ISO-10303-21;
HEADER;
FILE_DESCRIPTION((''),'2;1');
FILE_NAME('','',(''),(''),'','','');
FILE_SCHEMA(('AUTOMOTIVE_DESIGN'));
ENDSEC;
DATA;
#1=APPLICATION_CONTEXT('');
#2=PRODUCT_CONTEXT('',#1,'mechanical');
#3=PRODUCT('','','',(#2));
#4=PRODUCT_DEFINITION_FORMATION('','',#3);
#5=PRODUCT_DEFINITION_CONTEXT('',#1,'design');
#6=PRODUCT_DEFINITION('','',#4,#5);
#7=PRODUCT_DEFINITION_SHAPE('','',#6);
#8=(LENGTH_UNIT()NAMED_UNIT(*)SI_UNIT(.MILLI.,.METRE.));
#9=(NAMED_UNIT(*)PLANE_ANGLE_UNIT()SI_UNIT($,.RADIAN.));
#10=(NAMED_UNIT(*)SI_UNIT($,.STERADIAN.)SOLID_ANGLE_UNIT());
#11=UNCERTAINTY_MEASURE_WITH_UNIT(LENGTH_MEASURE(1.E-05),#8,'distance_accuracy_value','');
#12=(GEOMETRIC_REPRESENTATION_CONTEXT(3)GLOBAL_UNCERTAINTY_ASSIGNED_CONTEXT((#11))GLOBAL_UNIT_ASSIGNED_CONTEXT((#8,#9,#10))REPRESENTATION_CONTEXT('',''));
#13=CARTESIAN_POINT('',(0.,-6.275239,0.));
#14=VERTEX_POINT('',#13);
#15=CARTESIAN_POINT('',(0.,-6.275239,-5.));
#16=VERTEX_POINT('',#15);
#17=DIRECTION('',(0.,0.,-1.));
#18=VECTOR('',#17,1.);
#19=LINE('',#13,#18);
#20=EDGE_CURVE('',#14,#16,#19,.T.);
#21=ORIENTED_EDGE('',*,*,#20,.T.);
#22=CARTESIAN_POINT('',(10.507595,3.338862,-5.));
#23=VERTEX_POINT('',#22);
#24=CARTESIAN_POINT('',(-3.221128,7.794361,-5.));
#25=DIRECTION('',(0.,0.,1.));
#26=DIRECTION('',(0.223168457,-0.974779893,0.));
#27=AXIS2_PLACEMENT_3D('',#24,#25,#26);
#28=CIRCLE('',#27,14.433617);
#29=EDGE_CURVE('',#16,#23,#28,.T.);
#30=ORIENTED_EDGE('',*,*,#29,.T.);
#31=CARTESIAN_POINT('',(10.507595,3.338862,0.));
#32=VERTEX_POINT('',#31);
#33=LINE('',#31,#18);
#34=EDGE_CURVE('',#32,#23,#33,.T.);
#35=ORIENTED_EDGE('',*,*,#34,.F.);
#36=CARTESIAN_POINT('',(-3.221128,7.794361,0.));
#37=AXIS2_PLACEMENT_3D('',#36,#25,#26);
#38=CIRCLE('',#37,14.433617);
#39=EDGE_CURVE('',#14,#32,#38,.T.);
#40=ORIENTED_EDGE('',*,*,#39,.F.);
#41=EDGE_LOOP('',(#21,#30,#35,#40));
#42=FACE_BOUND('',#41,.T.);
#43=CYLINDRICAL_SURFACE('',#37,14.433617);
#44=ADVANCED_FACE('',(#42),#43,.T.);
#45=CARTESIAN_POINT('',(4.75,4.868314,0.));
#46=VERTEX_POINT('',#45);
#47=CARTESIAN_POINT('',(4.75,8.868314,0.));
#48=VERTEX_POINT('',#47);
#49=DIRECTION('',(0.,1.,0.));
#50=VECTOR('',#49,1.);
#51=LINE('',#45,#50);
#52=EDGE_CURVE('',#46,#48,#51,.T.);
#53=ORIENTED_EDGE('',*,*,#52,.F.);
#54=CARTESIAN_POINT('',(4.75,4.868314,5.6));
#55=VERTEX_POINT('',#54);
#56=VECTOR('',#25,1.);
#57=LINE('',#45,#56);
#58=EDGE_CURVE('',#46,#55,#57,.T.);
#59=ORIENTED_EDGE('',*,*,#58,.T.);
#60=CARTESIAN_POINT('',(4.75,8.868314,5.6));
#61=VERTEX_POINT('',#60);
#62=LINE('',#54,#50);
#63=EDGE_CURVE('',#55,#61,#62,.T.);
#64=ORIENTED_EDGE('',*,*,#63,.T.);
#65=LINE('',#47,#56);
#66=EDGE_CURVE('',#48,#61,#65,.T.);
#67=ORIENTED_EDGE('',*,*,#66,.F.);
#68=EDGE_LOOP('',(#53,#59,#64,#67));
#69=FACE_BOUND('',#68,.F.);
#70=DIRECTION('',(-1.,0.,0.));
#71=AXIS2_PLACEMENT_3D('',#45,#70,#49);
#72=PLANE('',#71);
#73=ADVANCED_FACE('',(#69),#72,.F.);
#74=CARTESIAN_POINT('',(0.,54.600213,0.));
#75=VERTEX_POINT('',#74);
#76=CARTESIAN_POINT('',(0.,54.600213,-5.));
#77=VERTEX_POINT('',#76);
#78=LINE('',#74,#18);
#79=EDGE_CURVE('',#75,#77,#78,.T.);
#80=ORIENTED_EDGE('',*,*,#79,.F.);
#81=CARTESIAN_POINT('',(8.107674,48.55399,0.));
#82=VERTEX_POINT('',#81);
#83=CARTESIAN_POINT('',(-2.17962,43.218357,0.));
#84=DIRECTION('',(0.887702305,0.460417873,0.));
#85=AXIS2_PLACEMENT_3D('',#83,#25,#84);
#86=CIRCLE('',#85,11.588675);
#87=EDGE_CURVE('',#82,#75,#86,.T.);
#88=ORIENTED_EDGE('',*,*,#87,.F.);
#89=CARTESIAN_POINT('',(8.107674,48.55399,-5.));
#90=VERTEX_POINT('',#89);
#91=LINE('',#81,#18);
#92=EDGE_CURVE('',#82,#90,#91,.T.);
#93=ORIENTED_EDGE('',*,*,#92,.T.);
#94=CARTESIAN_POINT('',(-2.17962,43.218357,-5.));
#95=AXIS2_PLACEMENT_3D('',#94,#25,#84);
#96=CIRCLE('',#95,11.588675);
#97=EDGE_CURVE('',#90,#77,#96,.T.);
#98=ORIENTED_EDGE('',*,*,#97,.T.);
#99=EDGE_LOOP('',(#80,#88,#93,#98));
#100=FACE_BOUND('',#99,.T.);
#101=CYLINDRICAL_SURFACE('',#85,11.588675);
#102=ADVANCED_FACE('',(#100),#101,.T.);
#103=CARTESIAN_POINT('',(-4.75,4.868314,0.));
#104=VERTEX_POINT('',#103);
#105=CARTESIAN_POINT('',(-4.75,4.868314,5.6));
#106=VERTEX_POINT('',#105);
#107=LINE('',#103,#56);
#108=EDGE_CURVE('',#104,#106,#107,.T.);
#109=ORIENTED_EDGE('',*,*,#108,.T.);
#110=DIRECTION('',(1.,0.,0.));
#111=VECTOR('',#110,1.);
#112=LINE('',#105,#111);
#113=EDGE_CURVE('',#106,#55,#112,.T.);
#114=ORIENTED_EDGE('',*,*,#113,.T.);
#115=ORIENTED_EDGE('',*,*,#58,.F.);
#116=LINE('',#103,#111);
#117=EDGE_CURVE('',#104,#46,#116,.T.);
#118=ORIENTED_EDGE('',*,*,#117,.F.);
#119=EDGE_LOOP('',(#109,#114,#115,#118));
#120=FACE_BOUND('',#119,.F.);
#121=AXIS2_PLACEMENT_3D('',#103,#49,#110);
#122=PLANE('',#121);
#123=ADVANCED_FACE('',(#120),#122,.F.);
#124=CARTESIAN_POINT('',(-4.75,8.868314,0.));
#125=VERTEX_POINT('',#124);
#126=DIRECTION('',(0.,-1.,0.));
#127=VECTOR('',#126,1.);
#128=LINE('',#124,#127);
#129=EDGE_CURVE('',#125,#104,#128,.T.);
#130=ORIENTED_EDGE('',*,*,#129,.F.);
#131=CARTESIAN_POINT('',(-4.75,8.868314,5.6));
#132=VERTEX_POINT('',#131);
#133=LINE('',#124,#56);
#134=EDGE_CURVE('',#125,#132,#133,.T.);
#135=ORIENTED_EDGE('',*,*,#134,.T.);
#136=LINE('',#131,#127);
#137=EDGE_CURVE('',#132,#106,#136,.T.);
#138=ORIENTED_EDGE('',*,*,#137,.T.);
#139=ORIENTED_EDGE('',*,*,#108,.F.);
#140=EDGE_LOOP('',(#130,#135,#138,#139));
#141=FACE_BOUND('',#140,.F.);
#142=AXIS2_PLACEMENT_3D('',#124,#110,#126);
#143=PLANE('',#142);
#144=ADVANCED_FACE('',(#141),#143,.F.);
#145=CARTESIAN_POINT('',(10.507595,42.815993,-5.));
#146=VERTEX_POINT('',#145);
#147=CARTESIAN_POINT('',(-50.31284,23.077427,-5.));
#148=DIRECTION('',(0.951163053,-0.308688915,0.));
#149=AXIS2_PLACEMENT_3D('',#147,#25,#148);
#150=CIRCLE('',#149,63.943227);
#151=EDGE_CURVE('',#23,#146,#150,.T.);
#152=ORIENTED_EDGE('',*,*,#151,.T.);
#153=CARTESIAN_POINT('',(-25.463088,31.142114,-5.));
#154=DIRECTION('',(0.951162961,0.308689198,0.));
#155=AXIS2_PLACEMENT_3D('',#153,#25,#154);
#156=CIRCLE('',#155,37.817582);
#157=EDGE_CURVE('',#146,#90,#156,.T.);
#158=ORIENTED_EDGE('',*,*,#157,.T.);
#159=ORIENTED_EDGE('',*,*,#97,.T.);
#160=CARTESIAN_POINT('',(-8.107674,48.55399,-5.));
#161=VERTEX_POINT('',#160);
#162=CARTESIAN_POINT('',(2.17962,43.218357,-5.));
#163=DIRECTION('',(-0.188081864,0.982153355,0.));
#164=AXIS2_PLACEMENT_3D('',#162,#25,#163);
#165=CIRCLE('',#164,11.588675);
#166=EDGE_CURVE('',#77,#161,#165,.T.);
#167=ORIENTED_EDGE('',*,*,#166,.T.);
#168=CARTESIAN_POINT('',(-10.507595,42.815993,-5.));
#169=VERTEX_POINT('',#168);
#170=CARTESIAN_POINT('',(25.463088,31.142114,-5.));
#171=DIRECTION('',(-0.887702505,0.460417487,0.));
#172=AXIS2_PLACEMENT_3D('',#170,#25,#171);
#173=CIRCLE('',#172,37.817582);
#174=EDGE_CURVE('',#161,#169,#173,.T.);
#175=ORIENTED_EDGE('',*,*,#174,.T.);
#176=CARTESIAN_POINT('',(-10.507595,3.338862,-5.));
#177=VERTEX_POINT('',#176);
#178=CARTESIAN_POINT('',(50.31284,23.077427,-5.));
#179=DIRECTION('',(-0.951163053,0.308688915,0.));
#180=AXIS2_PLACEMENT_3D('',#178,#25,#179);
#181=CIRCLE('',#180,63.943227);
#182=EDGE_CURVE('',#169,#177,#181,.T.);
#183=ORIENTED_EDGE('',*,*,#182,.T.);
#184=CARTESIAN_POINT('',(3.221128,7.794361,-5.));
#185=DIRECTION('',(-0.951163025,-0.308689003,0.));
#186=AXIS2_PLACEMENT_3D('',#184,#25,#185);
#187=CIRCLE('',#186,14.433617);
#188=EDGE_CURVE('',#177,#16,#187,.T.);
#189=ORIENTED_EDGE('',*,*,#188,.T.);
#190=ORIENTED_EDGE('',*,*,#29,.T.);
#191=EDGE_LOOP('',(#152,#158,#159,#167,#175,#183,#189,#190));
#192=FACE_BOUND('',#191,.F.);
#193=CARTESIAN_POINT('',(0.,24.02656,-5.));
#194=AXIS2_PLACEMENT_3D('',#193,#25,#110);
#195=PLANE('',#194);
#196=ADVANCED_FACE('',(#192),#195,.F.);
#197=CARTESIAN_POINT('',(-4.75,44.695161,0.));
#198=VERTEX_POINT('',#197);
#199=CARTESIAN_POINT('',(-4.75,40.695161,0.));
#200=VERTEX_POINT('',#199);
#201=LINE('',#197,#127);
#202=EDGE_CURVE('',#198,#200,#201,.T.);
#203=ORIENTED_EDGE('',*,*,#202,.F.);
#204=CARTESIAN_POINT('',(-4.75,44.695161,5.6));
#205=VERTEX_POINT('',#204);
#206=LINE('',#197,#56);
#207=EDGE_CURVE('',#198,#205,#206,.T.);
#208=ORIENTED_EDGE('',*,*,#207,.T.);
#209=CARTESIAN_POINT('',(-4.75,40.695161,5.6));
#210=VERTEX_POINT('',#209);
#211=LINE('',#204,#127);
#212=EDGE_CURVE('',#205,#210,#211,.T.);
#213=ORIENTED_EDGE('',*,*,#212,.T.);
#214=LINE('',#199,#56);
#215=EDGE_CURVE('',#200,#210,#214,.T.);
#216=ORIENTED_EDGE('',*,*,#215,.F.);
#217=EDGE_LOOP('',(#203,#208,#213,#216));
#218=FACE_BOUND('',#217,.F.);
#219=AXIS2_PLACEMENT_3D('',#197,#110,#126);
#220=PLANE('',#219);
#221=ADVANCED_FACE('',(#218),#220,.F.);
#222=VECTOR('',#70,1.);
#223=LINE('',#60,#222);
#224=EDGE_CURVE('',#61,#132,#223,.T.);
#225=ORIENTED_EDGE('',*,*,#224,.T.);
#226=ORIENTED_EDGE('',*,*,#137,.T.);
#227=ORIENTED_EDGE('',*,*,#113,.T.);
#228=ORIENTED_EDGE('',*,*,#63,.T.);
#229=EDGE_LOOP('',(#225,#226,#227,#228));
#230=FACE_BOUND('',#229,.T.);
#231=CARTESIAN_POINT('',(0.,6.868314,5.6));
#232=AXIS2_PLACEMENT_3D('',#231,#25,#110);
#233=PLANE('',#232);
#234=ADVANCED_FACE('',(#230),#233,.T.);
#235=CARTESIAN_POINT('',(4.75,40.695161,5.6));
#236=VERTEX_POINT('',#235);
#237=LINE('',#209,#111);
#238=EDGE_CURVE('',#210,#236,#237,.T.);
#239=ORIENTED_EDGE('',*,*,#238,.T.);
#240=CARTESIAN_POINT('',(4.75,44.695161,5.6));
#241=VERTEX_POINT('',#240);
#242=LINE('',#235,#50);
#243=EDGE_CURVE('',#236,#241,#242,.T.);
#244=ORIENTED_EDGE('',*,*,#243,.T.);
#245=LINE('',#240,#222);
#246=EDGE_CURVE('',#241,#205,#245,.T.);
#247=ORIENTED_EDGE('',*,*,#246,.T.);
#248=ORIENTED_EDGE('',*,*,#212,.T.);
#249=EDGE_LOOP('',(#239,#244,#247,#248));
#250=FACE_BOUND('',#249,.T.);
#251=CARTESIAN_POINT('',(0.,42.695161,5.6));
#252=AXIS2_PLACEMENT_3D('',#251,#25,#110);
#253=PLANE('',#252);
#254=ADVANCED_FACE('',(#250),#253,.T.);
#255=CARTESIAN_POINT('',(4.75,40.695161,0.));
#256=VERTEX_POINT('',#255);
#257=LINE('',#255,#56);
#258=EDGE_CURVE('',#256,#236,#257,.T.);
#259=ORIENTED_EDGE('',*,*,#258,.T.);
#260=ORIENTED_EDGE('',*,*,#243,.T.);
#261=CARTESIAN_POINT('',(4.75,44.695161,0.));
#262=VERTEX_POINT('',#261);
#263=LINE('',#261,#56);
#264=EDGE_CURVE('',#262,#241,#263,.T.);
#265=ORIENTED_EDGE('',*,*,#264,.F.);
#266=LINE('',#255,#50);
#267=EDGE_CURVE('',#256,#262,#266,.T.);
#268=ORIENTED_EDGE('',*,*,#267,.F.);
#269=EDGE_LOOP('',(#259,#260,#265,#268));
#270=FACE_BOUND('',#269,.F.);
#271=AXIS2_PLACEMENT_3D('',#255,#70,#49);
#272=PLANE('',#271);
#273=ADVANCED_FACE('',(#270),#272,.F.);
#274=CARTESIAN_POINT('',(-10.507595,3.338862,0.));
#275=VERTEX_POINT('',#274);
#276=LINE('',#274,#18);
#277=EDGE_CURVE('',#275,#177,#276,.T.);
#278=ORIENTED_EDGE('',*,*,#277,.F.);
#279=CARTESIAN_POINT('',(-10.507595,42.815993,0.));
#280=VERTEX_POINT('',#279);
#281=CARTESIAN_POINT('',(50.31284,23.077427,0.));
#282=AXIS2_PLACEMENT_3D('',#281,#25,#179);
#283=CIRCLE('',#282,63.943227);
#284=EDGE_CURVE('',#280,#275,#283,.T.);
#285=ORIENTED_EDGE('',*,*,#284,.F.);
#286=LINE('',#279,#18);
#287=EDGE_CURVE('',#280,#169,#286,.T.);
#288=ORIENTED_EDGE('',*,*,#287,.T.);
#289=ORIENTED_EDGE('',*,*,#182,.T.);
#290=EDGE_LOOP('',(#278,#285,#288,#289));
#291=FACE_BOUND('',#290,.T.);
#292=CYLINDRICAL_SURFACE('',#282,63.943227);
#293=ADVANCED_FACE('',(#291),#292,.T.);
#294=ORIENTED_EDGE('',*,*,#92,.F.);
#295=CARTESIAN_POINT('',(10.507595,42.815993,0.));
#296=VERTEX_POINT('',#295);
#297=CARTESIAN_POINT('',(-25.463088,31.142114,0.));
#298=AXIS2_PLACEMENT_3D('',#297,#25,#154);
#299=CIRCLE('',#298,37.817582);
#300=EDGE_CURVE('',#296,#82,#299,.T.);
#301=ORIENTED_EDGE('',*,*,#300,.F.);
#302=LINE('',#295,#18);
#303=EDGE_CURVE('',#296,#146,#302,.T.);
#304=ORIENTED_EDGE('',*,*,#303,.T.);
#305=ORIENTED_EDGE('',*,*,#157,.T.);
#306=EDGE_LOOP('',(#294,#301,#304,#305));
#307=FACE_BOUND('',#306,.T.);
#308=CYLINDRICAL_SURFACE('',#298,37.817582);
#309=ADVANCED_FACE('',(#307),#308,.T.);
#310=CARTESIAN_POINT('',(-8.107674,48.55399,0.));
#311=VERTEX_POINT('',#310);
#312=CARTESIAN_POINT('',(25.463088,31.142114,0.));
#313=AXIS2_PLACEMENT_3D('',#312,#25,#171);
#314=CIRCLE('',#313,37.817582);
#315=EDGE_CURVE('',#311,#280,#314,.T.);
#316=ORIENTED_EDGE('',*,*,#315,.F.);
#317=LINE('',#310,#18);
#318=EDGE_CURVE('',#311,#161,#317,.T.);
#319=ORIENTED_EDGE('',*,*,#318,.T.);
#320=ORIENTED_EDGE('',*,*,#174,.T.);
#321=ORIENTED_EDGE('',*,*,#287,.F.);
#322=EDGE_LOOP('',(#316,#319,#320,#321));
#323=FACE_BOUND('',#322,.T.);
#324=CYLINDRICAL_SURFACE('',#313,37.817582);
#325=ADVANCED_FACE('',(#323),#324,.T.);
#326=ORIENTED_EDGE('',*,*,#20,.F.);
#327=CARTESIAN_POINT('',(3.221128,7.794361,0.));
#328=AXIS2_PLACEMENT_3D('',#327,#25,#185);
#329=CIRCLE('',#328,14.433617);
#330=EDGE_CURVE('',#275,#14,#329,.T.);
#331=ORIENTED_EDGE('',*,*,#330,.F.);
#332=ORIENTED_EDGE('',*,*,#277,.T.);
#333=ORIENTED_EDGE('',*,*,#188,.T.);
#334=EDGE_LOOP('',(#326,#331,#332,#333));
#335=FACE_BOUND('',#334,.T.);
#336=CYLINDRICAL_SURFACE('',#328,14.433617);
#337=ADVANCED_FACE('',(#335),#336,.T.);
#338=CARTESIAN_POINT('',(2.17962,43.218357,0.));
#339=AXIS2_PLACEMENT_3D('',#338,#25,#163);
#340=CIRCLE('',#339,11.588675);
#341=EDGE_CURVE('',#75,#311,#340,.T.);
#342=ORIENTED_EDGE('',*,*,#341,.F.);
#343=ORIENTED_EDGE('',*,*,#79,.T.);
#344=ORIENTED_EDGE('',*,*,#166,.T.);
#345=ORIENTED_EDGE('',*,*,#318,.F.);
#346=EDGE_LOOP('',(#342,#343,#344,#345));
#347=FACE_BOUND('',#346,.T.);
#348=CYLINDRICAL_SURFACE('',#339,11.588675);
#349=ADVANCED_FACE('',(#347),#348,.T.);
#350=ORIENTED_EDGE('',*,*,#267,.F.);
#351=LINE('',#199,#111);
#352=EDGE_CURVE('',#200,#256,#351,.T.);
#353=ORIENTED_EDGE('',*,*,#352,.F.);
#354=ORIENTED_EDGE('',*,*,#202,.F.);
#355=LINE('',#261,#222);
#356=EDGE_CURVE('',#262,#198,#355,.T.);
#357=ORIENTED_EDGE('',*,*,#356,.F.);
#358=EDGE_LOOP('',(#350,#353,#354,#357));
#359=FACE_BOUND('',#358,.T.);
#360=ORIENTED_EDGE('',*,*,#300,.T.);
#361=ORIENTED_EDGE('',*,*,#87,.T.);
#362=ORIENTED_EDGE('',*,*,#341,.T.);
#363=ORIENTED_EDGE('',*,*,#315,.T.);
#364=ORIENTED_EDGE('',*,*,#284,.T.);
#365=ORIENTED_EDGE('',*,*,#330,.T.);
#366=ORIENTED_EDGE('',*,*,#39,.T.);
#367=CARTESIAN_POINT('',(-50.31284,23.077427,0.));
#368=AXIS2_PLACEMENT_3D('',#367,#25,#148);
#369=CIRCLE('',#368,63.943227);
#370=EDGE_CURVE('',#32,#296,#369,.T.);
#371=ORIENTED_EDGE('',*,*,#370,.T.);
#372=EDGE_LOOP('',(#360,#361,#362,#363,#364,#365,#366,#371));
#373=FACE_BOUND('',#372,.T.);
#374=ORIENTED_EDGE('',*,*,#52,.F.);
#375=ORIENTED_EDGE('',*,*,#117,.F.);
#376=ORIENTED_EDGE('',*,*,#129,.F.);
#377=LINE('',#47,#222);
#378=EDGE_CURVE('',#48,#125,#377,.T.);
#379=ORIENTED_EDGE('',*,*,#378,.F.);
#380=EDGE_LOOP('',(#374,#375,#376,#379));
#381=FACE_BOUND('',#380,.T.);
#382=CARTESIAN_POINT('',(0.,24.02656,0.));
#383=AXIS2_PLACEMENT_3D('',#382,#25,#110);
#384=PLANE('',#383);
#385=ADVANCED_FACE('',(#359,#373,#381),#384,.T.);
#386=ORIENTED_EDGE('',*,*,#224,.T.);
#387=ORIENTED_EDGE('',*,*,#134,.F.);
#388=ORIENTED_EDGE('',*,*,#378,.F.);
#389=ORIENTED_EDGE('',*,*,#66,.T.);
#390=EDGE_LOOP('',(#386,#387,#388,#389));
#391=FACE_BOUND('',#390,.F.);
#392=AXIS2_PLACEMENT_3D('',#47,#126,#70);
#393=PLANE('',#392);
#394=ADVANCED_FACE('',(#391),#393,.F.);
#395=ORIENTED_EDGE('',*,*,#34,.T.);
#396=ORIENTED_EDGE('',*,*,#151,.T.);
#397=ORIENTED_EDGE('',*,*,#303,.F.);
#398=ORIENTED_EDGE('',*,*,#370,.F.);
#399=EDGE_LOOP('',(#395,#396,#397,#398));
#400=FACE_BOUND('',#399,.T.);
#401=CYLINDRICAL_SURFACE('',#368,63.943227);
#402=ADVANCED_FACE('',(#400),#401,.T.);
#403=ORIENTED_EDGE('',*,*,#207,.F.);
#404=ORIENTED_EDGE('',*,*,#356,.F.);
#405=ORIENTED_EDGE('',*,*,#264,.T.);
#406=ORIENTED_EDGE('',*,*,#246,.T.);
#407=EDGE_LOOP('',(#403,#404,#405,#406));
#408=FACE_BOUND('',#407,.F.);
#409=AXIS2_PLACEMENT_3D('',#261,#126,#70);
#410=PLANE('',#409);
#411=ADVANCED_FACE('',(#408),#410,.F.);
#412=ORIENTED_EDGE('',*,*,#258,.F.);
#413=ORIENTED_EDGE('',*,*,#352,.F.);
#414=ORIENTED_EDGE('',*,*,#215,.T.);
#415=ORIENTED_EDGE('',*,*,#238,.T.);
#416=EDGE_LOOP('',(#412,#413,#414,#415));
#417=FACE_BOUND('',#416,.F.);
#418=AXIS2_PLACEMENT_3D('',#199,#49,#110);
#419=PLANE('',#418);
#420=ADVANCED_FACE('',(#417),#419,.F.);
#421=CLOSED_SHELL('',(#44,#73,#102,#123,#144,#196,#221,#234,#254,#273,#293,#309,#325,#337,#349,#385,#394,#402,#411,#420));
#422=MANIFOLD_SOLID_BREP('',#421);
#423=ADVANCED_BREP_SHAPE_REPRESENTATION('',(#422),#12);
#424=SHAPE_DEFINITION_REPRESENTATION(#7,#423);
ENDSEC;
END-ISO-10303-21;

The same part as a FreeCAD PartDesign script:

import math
import FreeCAD as App
import Part
import Sketcher
Q = App.Units.Quantity


def add_polygon(sketch, points):
    """Adds a closed chain of lines whose ends are joined by coincident constraints."""
    first, n = sketch.GeometryCount, len(points)
    for a, b in zip(points, points[1:] + points[:1]):
        sketch.addGeometry(Part.LineSegment(App.Vector(*a, 0), App.Vector(*b, 0)), False)
    for i in range(n):
        sketch.addConstraint(Sketcher.Constraint("Coincident", first + i, 2, first + (i + 1) % n, 1))

doc = App.newDocument("Part")
body = doc.addObject("PartDesign::Body", "Body")

# Sketch on XY plane
sketch1 = doc.addObject("Sketcher::SketchObject", "Sketch")
body.addObject(sketch1)
sketch1.AttachmentSupport = (doc.XY_Plane, [""])
sketch1.MapMode = "FlatFace"
sketch1.addGeometry([
    Part.ArcOfCircle(Part.Circle(App.Vector(-25, 31, 0), App.Vector(0, 0, 1), 38), math.radians(17.98), math.radians(27.41)),  # 0
    Part.ArcOfCircle(Part.Circle(App.Vector(-2, 43, 0), App.Vector(0, 0, 1), 12), math.radians(27), math.radians(79)),  # 1
    Part.ArcOfCircle(Part.Circle(App.Vector(2, 43, 0), App.Vector(0, 0, 1), 12), math.radians(101), math.radians(153)),  # 2
    Part.ArcOfCircle(Part.Circle(App.Vector(25, 31, 0), App.Vector(0, 0, 1), 38), math.radians(152.59), math.radians(162.02)),  # 3
    Part.ArcOfCircle(Part.Circle(App.Vector(50, 23, 0), App.Vector(0, 0, 1), 64), math.radians(162), math.radians(198)),  # 4
    Part.ArcOfCircle(Part.Circle(App.Vector(3, 8, 0), App.Vector(0, 0, 1), 14), math.radians(-162), math.radians(-103)),  # 5
    Part.ArcOfCircle(Part.Circle(App.Vector(-3, 8, 0), App.Vector(0, 0, 1), 14), math.radians(-77), math.radians(-18)),  # 6
    Part.ArcOfCircle(Part.Circle(App.Vector(-50, 23, 0), App.Vector(0, 0, 1), 64), math.radians(-18), math.radians(18)),  # 7
], False)
sketch1.addConstraint([
    Sketcher.Constraint("Tangent", 0, 2, 1, 1),
    Sketcher.Constraint("Coincident", 1, 2, 2, 1),
    Sketcher.Constraint("Tangent", 2, 2, 3, 1),
    Sketcher.Constraint("Tangent", 3, 2, 4, 1),
    Sketcher.Constraint("Tangent", 4, 2, 5, 1),
    Sketcher.Constraint("Coincident", 5, 2, 6, 1),
    Sketcher.Constraint("Tangent", 6, 2, 7, 1),
    Sketcher.Constraint("Tangent", 7, 2, 0, 1),
    Sketcher.Constraint("Equal", 1, 2),
    Sketcher.Constraint("Equal", 0, 3),
    Sketcher.Constraint("Equal", 5, 6),
    Sketcher.Constraint("Equal", 4, 7),
    Sketcher.Constraint("Symmetric", 1, 3, 2, 3, -2),
    Sketcher.Constraint("Symmetric", 5, 3, 6, 3, -2),
    Sketcher.Constraint("Horizontal", 0, 3, 3, 3),
    Sketcher.Constraint("Vertical", 3, 2, 4, 2),
    Sketcher.Constraint("Radius", 0, Q("37.817582 mm")),
    Sketcher.Constraint("Radius", 1, Q("11.588675 mm")),
    Sketcher.Constraint("Radius", 4, Q("63.943227 mm")),
    Sketcher.Constraint("Radius", 5, Q("14.433617 mm")),
    Sketcher.Constraint("DistanceY", 3, 3, 1, 2, Q("23.458099 mm")),
    Sketcher.Constraint("DistanceY", 4, 2, 6, 3, Q("4.455499 mm")),
    Sketcher.Constraint("DistanceY", 5, 2, 6, 3, Q("14.0696 mm")),
    Sketcher.Constraint("DistanceY", -1, 1, 5, 3, Q("7.794361 mm")),
])
pad1 = doc.addObject("PartDesign::Pad", "Pad")
body.addObject(pad1)
pad1.Profile = sketch1
pad1.Length = 5
pad1.Reversed = True

# Sketch on XY plane
sketch2 = doc.addObject("Sketcher::SketchObject", "Sketch001")
body.addObject(sketch2)
sketch2.AttachmentSupport = (doc.XY_Plane, [""])
sketch2.MapMode = "FlatFace"
add_polygon(sketch2, [(4.8, 8.9), (-4.8, 8.9), (-4.8, 4.9), (4.8, 4.9)])  # lines 0-3
add_polygon(sketch2, [(4.8, 44.7), (-4.8, 44.7), (-4.8, 40.7), (4.8, 40.7)])  # lines 4-7
sketch2.addConstraint([
    Sketcher.Constraint("Horizontal", 0),
    Sketcher.Constraint("Vertical", 1),
    Sketcher.Constraint("Horizontal", 2),
    Sketcher.Constraint("Vertical", 3),
    Sketcher.Constraint("Horizontal", 4),
    Sketcher.Constraint("Vertical", 5),
    Sketcher.Constraint("Horizontal", 6),
    Sketcher.Constraint("Vertical", 7),
    Sketcher.Constraint("Vertical", 1, 2, 4, 2),
    Sketcher.Constraint("Vertical", 3, 2, 6, 2),
    Sketcher.Constraint("Equal", 3, 5),
    Sketcher.Constraint("DistanceY", 1, 2, 1, 1, Q("4 mm")),
    Sketcher.Constraint("DistanceX", 0, 2, 0, 1, Q("9.5 mm")),
    Sketcher.Constraint("DistanceX", 0, 2, -1, 1, Q("4.75 mm")),
    Sketcher.Constraint("DistanceY", -1, 1, 4, 2, Q("44.695161 mm")),
    Sketcher.Constraint("DistanceY", -1, 1, 0, 2, Q("8.868314 mm")),
])
pad2 = doc.addObject("PartDesign::Pad", "Pad001")
body.addObject(pad2)
pad2.Profile = sketch2
pad2.Length = 5.6

doc.recompute()
